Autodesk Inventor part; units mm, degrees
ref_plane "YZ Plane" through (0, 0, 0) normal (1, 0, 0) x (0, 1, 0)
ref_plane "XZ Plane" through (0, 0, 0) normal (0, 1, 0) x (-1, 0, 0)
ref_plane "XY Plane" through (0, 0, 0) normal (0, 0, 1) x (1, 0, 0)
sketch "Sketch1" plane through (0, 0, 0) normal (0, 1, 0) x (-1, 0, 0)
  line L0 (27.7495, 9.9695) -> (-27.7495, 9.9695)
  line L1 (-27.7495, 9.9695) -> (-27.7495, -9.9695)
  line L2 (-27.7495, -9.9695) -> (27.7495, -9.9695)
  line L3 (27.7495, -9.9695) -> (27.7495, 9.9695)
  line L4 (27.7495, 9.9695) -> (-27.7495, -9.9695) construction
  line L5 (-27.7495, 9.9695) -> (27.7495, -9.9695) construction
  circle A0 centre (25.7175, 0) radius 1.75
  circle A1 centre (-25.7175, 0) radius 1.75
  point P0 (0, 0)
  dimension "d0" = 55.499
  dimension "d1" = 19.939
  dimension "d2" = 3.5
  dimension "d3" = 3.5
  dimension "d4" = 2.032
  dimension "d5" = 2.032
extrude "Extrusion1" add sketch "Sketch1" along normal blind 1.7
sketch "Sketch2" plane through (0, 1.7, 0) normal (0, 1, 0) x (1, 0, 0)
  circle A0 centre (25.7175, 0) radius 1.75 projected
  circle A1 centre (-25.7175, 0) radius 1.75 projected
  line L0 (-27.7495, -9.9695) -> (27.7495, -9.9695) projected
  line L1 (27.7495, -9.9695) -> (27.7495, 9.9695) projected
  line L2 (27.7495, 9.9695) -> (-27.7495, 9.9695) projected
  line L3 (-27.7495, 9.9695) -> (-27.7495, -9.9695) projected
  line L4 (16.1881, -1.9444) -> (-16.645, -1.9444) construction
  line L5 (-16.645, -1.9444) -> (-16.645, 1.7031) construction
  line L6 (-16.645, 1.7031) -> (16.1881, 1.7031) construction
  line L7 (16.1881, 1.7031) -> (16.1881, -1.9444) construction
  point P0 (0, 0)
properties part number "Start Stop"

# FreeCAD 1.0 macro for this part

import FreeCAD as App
import Part
import Sketcher

V = App.Vector
Q = App.Units.Quantity


def add_polygon(sketch, points):
    """Adds a closed chain of lines whose ends are joined by coincident constraints."""
    first, n = sketch.GeometryCount, len(points)
    for a, b in zip(points, points[1:] + points[:1]):
        sketch.addGeometry(Part.LineSegment(App.Vector(*a, 0), App.Vector(*b, 0)), False)
    for i in range(n):
        sketch.addConstraint(Sketcher.Constraint("Coincident", first + i, 2, first + (i + 1) % n, 1))

doc = App.newDocument("Part")
body = doc.addObject("PartDesign::Body", "Body")

sketch1 = body.newObject("Sketcher::SketchObject", "Sketch")
sketch1.AttachmentSupport = (doc.getObject("XZ_Plane"), [""])
sketch1.MapMode = "FlatFace"
add_polygon(sketch1, [(-27.7495, -9.9695), (-27.7495, 9.9695), (27.7495, 9.9695), (27.7495, -9.9695)])
sketch1.addGeometry(Part.Circle(V(25.7175, 0, 0), V(0, 0, 1), 1.75), False)
sketch1.addGeometry(Part.Circle(V(-25.7175, 0, 0), V(0, 0, 1), 1.75), False)
sketch1.addConstraint(Sketcher.Constraint("Vertical", 0))
sketch1.addConstraint(Sketcher.Constraint("Horizontal", 1))
sketch1.addConstraint(Sketcher.Constraint("Vertical", 2))
sketch1.addConstraint(Sketcher.Constraint("Horizontal", 3))
sketch1.addConstraint(Sketcher.Constraint("Equal", 4, 5))
sketch1.addConstraint(Sketcher.Constraint("Symmetric", 4, 3, 5, 3, -1, 1))
sketch1.addConstraint(Sketcher.Constraint("Symmetric", 0, 2, 2, 2, -1, 1))
sketch1.addConstraint(Sketcher.Constraint("PointOnObject", 4, 3, -1))
sketch1.addConstraint(Sketcher.Constraint("Diameter", 4, Q("0.1378 in")))
sketch1.addConstraint(Sketcher.Constraint("DistanceX", 1, 1, 1, 2, Q("2.185 in")))
sketch1.addConstraint(Sketcher.Constraint("DistanceY", 0, 1, 0, 2, Q("0.785 in")))
sketch1.addConstraint(Sketcher.Constraint("DistanceX", 0, 2, 5, 3, Q("0.08 in")))
pad1 = body.newObject("PartDesign::Pad", "Pad")
pad1.Profile = sketch1
pad1.Length = 1.7
pad1.Reversed = True

doc.recompute()
